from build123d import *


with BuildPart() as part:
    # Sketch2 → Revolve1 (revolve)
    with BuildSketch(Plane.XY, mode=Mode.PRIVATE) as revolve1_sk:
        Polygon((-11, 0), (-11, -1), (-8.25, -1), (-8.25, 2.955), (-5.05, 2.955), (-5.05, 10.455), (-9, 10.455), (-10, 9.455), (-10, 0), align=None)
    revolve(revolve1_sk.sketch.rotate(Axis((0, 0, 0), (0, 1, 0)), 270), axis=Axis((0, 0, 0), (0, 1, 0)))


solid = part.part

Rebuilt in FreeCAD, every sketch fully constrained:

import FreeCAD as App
import Part
import Sketcher
Q = App.Units.Quantity


def add_polygon(sketch, points):
    """Adds a closed chain of lines whose ends are joined by coincident constraints."""
    first, n = sketch.GeometryCount, len(points)
    for a, b in zip(points, points[1:] + points[:1]):
        sketch.addGeometry(Part.LineSegment(App.Vector(*a, 0), App.Vector(*b, 0)), False)
    for i in range(n):
        sketch.addConstraint(Sketcher.Constraint("Coincident", first + i, 2, first + (i + 1) % n, 1))

doc = App.newDocument("Part")
body = doc.addObject("PartDesign::Body", "Body")

# Sketch on XY plane
sketch1 = doc.addObject("Sketcher::SketchObject", "Sketch")
body.addObject(sketch1)
sketch1.AttachmentSupport = (doc.XY_Plane, [""])
sketch1.MapMode = "FlatFace"
add_polygon(sketch1, [(-11, 0), (-11, -1), (-8.2, -1), (-8.2, 3), (-5, 3), (-5, 10.5), (-9, 10.5), (-10, 9.5), (-10, 0)])  # lines 0-8
sketch1.addConstraint(Sketcher.Constraint("Vertical", 0))
sketch1.addConstraint(Sketcher.Constraint("Horizontal", 1))
sketch1.addConstraint(Sketcher.Constraint("Vertical", 2))
sketch1.addConstraint(Sketcher.Constraint("Horizontal", 3))
sketch1.addConstraint(Sketcher.Constraint("Vertical", 4))
sketch1.addConstraint(Sketcher.Constraint("Horizontal", 5))
sketch1.addConstraint(Sketcher.Constraint("Vertical", 7))
sketch1.addConstraint(Sketcher.Constraint("Horizontal", 8))
sketch1.addConstraint(Sketcher.Constraint("PointOnObject", 7, 2, -1))
sketch1.addConstraint(Sketcher.Constraint("Equal", 8, 0))
sketch1.addConstraint(Sketcher.Constraint("DistanceX", 8, 2, 8, 1, Q("1 mm")))
sketch1.addConstraint(Sketcher.Constraint("Angle", 6, Q("-135 deg")))
sketch1.addConstraint(Sketcher.Constraint("DistanceX", 3, 1, 3, 2, Q("3.2 mm")))
sketch1.addConstraint(Sketcher.Constraint("DistanceY", 4, 1, 4, 2, Q("7.5 mm")))
sketch1.addConstraint(Sketcher.Constraint("DistanceX", 0, 2, -1, 1, Q("11 mm")))
sketch1.addConstraint(Sketcher.Constraint("DistanceX", 5, 2, -1, 1, Q("9 mm")))
sketch1.addConstraint(Sketcher.Constraint("DistanceX", 1, 1, 1, 2, Q("2.75 mm")))
sketch1.addConstraint(Sketcher.Constraint("DistanceY", 2, 1, 2, 2, Q("3.955 mm")))
revolution = doc.addObject("PartDesign::Revolution", "Revolution")
body.addObject(revolution)
revolution.Profile = sketch1
revolution.ReferenceAxis = (sketch1, ["V_Axis"])
revolution.Angle = 360

doc.recompute()
